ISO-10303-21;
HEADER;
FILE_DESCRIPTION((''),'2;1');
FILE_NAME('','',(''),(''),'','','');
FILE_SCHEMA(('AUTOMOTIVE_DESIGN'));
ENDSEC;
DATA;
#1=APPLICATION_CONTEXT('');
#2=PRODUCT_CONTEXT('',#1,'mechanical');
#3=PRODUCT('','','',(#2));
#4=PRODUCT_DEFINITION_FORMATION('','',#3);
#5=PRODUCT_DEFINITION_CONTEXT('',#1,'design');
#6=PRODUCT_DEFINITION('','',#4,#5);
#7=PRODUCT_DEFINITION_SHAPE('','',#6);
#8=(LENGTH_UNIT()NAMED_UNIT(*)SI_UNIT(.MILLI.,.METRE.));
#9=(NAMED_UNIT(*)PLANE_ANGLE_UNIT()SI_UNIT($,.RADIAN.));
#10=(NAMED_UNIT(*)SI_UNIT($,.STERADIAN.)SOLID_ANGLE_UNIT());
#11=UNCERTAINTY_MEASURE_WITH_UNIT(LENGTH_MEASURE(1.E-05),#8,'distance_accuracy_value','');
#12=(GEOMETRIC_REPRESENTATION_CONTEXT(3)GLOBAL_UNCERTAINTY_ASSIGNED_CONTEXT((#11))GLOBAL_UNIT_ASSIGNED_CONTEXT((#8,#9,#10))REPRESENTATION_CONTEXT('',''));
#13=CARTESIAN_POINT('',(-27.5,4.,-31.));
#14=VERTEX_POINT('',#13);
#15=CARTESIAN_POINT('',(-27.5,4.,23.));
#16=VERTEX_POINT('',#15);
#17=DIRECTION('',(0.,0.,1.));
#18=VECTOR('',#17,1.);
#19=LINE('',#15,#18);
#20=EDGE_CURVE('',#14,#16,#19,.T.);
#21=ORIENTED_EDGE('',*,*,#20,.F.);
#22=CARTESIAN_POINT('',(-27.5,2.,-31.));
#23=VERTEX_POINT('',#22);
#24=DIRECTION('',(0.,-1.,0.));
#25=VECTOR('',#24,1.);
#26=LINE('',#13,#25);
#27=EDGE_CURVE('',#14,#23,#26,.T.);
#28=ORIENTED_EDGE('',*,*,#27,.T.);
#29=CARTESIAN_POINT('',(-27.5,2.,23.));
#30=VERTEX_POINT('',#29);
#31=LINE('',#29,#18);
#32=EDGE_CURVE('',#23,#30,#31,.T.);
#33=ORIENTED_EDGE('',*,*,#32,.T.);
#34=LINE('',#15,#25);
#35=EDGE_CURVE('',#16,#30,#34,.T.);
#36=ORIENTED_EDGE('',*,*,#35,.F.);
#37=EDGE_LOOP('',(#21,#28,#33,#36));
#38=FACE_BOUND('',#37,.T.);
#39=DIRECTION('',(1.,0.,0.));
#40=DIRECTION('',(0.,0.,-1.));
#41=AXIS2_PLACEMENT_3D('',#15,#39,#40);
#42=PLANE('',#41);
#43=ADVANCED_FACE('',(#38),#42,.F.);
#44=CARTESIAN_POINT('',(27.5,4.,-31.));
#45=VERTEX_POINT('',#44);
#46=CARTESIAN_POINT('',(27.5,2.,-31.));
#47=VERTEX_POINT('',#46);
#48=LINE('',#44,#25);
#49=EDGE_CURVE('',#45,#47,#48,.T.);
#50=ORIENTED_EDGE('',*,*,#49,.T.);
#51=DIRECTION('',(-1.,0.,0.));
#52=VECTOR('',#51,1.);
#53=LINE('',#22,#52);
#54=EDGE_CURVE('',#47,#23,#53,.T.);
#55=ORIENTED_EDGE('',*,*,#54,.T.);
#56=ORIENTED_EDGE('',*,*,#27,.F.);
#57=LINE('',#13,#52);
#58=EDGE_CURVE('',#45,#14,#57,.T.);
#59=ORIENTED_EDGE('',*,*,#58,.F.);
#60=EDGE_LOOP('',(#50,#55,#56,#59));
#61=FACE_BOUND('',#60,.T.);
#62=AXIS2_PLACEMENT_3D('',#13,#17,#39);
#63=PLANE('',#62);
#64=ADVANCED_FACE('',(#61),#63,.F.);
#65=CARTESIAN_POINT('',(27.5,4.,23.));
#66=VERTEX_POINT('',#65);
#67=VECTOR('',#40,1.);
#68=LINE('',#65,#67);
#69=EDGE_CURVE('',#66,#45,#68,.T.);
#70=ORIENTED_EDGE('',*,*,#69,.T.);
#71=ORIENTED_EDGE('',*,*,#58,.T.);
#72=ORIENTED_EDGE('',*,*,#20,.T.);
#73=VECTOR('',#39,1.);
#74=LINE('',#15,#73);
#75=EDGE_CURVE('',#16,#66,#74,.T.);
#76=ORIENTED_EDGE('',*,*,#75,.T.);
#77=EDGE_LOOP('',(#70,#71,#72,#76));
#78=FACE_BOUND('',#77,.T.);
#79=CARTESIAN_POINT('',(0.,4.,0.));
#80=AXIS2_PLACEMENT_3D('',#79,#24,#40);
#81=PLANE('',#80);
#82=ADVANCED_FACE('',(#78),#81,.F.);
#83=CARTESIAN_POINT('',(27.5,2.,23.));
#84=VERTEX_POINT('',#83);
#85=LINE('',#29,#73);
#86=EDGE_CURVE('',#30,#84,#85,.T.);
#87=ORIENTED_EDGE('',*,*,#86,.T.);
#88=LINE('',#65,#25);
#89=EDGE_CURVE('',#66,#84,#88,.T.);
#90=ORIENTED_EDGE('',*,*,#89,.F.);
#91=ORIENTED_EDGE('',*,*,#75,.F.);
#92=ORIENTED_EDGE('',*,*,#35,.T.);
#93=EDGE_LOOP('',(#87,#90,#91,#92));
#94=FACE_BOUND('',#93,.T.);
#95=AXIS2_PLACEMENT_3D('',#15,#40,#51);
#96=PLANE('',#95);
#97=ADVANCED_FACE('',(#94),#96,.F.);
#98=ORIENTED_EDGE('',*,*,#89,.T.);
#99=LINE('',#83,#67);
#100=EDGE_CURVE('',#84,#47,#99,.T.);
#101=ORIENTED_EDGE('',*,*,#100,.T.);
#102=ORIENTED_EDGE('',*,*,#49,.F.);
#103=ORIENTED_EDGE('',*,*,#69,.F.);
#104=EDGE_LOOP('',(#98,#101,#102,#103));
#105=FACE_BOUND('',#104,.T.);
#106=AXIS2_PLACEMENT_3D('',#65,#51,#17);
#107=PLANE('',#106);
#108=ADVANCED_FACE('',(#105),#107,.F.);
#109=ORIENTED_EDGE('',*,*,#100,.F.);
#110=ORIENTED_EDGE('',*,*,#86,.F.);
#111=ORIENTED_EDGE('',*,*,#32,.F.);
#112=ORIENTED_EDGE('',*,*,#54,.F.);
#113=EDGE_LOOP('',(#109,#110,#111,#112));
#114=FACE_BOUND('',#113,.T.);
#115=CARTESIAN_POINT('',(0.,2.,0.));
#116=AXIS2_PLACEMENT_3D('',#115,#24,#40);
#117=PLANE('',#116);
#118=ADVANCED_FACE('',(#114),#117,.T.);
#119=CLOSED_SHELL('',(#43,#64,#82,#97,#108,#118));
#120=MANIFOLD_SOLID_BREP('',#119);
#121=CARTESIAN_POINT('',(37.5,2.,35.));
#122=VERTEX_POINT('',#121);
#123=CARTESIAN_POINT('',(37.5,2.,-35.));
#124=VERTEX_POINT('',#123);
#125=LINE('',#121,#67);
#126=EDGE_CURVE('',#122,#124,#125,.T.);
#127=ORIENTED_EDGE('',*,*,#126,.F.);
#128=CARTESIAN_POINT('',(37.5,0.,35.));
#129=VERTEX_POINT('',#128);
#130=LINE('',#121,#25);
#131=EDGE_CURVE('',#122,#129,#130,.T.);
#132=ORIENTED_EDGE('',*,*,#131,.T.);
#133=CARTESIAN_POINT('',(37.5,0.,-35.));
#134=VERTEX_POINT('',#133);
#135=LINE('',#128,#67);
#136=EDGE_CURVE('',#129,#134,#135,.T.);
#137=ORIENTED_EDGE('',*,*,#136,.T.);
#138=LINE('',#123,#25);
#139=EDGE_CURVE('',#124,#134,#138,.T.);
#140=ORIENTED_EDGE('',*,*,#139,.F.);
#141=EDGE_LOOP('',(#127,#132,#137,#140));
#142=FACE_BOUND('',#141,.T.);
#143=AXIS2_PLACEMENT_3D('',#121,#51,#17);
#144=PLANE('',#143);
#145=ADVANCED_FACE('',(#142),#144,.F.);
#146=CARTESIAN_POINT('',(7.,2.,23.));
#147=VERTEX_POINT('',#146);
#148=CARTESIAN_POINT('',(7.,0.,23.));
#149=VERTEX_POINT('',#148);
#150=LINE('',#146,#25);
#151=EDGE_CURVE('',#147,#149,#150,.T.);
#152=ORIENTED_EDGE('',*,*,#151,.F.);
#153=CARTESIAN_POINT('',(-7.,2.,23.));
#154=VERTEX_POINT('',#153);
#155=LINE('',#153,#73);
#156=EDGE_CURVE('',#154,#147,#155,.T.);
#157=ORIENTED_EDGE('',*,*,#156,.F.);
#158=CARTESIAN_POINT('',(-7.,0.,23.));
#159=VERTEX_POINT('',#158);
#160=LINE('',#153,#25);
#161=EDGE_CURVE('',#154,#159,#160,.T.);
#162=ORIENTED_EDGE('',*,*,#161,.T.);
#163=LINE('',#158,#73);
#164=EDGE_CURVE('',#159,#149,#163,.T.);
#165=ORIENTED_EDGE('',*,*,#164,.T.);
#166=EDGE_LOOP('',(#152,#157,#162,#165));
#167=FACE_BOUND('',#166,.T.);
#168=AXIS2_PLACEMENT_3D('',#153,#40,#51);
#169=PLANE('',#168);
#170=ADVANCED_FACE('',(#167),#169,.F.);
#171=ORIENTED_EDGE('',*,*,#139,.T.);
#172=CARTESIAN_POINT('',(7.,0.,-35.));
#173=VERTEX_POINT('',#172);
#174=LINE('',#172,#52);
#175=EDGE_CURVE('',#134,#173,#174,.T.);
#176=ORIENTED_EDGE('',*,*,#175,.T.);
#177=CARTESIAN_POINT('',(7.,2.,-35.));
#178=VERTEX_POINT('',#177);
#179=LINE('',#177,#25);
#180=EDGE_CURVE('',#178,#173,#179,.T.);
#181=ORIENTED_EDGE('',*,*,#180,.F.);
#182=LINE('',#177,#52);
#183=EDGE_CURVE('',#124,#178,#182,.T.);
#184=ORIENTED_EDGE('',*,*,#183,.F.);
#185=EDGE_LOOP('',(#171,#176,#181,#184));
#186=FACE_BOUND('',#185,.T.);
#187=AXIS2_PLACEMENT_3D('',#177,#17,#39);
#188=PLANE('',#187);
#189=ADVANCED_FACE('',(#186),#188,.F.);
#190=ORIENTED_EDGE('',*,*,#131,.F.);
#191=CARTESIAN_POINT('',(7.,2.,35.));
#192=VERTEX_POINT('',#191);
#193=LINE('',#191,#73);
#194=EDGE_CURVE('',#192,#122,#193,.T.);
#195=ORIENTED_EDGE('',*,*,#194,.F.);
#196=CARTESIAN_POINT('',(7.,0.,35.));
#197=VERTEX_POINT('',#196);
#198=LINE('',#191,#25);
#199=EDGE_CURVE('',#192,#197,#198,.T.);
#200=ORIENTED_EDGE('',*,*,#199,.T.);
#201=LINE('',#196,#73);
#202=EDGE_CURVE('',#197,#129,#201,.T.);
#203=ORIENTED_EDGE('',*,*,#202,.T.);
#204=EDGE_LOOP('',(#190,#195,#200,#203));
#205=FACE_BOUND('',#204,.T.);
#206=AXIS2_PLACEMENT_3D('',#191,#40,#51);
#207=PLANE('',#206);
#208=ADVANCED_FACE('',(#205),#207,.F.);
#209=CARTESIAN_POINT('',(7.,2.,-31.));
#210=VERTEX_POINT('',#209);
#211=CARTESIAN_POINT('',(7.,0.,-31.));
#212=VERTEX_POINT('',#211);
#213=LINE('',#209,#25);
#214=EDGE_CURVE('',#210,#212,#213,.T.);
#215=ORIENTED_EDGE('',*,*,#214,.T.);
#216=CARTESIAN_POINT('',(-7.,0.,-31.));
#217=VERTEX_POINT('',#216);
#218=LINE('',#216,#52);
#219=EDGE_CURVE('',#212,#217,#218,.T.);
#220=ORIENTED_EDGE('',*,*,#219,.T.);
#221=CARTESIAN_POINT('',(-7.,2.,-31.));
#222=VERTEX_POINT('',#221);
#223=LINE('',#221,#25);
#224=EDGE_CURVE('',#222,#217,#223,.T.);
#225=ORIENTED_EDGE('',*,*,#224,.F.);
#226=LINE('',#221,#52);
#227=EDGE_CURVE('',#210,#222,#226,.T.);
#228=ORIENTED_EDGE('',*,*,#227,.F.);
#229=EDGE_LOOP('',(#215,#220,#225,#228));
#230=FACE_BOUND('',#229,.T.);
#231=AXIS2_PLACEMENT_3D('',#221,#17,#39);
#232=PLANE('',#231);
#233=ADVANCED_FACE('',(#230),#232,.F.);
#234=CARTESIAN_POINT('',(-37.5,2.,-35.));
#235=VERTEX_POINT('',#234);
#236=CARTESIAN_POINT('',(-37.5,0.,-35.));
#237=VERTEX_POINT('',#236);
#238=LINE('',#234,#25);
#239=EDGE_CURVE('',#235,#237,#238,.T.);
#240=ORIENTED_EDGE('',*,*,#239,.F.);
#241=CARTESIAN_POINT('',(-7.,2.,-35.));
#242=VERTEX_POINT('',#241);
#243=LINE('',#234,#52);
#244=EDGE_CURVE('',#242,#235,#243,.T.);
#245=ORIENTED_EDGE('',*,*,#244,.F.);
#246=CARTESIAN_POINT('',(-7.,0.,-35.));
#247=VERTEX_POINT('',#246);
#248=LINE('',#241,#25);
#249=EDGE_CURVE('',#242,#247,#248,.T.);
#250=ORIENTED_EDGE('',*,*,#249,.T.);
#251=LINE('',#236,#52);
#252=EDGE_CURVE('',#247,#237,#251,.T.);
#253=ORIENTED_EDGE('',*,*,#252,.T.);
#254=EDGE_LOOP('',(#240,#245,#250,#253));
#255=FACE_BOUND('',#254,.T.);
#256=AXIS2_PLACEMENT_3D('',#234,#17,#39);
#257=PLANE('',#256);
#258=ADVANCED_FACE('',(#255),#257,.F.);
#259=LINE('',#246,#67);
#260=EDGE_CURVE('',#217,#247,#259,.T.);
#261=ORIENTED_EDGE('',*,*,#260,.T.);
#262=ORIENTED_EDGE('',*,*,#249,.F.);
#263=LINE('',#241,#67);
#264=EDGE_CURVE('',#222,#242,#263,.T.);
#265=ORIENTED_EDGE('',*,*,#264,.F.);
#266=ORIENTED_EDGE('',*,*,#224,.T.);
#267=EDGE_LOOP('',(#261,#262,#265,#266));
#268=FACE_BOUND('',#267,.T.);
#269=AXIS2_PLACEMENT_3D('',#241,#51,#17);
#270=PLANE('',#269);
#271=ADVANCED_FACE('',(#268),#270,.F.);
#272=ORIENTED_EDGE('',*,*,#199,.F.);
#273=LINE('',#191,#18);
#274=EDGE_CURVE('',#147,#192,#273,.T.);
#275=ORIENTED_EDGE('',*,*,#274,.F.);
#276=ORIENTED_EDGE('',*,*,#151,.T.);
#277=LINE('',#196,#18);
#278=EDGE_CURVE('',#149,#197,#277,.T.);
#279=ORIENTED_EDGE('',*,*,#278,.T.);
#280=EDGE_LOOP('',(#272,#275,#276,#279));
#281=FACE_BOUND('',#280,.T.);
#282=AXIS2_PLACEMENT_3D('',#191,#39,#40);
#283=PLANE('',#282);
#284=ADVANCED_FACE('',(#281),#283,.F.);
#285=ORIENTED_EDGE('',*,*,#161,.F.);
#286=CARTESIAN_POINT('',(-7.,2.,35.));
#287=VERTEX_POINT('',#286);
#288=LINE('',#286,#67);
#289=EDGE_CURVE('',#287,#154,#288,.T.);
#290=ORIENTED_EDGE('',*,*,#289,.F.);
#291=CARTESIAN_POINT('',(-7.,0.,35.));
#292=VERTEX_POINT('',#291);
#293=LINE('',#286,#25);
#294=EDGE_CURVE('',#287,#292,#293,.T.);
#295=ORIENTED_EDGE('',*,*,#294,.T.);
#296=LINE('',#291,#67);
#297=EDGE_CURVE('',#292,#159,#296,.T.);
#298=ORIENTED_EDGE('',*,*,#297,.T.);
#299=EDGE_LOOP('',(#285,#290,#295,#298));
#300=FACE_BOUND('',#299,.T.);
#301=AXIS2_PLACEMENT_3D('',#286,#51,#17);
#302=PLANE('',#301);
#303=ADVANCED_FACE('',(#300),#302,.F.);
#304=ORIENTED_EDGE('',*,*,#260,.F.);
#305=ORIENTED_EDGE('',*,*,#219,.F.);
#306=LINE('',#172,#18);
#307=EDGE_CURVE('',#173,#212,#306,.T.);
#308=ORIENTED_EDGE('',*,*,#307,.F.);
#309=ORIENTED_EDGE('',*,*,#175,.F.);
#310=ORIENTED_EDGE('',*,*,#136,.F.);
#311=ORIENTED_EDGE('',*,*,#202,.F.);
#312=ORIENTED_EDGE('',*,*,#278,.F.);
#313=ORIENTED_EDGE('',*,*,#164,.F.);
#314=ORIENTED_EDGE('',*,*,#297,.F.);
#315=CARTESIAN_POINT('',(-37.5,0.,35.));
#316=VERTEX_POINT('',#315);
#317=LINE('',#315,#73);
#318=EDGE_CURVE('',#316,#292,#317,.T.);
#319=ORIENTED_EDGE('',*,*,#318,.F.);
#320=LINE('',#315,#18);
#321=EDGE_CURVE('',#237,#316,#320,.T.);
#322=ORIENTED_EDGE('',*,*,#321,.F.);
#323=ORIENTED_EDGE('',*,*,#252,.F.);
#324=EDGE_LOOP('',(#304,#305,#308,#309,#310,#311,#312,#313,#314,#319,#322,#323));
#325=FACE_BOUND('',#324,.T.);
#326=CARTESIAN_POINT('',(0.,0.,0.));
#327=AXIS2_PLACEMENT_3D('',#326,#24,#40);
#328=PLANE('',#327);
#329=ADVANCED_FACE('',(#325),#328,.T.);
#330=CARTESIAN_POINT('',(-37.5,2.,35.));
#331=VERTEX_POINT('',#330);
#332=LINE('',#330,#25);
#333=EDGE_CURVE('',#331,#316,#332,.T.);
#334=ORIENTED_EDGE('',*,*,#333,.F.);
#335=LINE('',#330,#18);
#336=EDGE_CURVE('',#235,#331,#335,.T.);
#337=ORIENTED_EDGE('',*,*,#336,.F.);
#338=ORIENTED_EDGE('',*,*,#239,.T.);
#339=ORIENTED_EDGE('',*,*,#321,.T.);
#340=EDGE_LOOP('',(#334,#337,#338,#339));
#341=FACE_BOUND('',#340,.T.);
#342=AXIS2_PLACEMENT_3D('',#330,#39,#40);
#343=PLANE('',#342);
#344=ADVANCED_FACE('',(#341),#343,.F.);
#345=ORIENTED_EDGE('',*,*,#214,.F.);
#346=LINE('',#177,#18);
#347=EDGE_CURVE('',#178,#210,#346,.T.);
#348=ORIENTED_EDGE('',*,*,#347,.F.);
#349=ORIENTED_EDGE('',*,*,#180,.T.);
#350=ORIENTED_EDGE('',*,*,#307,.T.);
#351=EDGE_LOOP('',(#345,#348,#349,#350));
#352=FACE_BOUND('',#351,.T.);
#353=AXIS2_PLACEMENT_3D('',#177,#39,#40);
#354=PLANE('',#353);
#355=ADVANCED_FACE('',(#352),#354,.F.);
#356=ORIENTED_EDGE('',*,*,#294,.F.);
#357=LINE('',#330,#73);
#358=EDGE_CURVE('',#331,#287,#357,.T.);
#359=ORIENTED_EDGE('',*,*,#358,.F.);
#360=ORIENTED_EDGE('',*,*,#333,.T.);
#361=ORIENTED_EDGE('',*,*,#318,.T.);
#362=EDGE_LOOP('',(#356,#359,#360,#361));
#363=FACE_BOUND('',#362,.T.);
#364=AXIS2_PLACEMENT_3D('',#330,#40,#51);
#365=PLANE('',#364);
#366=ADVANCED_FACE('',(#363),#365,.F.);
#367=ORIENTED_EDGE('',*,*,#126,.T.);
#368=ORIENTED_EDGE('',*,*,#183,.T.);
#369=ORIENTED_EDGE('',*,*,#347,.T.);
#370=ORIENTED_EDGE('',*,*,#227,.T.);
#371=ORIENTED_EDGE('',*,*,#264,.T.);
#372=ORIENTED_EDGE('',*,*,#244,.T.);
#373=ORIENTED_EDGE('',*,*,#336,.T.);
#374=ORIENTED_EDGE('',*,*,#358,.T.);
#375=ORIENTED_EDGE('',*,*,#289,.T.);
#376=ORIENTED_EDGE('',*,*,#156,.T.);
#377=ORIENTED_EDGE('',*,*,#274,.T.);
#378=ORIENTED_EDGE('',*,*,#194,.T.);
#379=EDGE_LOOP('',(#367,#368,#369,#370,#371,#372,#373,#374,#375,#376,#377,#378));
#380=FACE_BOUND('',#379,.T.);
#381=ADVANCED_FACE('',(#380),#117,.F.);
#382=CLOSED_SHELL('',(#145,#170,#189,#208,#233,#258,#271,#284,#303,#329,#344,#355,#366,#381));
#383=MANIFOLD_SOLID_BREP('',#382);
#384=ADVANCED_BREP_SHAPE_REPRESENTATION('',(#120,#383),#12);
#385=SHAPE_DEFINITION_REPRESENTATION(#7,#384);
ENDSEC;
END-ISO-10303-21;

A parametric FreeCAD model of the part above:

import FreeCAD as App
import Part
import Sketcher
from FreeCAD import Vector

doc = App.newDocument("Part")
body = doc.addObject("PartDesign::Body", "Body")

# Sketch on XZ plane
sketch1 = body.newObject("Sketcher::SketchObject", "Sketch")
sketch1.AttachmentSupport = (doc.getObject("XZ_Plane"), [""])
sketch1.MapMode = "FlatFace"
sketch1.addGeometry(Part.LineSegment(Vector(37.5, -35, 0), Vector(7, -35, 0)), False)
sketch1.addGeometry(Part.LineSegment(Vector(7, -35, 0), Vector(7, -31, 0)), False)
sketch1.addGeometry(Part.LineSegment(Vector(7, -31, 0), Vector(-7, -31, 0)), False)
sketch1.addGeometry(Part.LineSegment(Vector(-7, -31, 0), Vector(-7, -35, 0)), False)
sketch1.addGeometry(Part.LineSegment(Vector(-7, -35, 0), Vector(-37.5, -35, 0)), False)
sketch1.addGeometry(Part.LineSegment(Vector(-37.5, -35, 0), Vector(-37.5, 35, 0)), False)
sketch1.addGeometry(Part.LineSegment(Vector(-37.5, 35, 0), Vector(-7, 35, 0)), False)
sketch1.addGeometry(Part.LineSegment(Vector(-7, 35, 0), Vector(-7, 23, 0)), False)
sketch1.addGeometry(Part.LineSegment(Vector(-7, 23, 0), Vector(7, 23, 0)), False)
sketch1.addGeometry(Part.LineSegment(Vector(7, 23, 0), Vector(7, 35, 0)), False)
sketch1.addGeometry(Part.LineSegment(Vector(7, 35, 0), Vector(37.5, 35, 0)), False)
sketch1.addGeometry(Part.LineSegment(Vector(37.5, 35, 0), Vector(37.5, -35, 0)), False)
sketch1.addConstraint(Sketcher.Constraint("Coincident", 0, 2, 1, 1))
sketch1.addConstraint(Sketcher.Constraint("Coincident", 1, 2, 2, 1))
sketch1.addConstraint(Sketcher.Constraint("Coincident", 2, 2, 3, 1))
sketch1.addConstraint(Sketcher.Constraint("Coincident", 3, 2, 4, 1))
sketch1.addConstraint(Sketcher.Constraint("Coincident", 4, 2, 5, 1))
sketch1.addConstraint(Sketcher.Constraint("Coincident", 5, 2, 6, 1))
sketch1.addConstraint(Sketcher.Constraint("Coincident", 6, 2, 7, 1))
sketch1.addConstraint(Sketcher.Constraint("Coincident", 7, 2, 8, 1))
sketch1.addConstraint(Sketcher.Constraint("Coincident", 8, 2, 9, 1))
sketch1.addConstraint(Sketcher.Constraint("Coincident", 9, 2, 10, 1))
sketch1.addConstraint(Sketcher.Constraint("Coincident", 10, 2, 11, 1))
sketch1.addConstraint(Sketcher.Constraint("Coincident", 11, 2, 0, 1))
sketch1.addConstraint(Sketcher.Constraint("Horizontal", 0))
sketch1.addConstraint(Sketcher.Constraint("Vertical", 1))
sketch1.addConstraint(Sketcher.Constraint("Horizontal", 2))
sketch1.addConstraint(Sketcher.Constraint("Vertical", 3))
sketch1.addConstraint(Sketcher.Constraint("Horizontal", 4))
sketch1.addConstraint(Sketcher.Constraint("Vertical", 5))
sketch1.addConstraint(Sketcher.Constraint("Horizontal", 6))
sketch1.addConstraint(Sketcher.Constraint("Vertical", 7))
sketch1.addConstraint(Sketcher.Constraint("Horizontal", 8))
sketch1.addConstraint(Sketcher.Constraint("Vertical", 9))
sketch1.addConstraint(Sketcher.Constraint("Horizontal", 10))
sketch1.addConstraint(Sketcher.Constraint("Vertical", 11))
sketch1.addConstraint(Sketcher.Constraint("Symmetric", 0, 2, 6, 2, -1, 1))
sketch1.addConstraint(Sketcher.Constraint("Symmetric", 3, 2, 9, 2, -1, 1))
sketch1.addConstraint(Sketcher.Constraint("Symmetric", 0, 2, 3, 2, -2))
sketch1.addConstraint(Sketcher.Constraint("Equal", 0, 4))
sketch1.addConstraint(Sketcher.Constraint("DistanceX", 2, 2, 2, 1, 14.0))
sketch1.addConstraint(Sketcher.Constraint("DistanceY", 1, 1, 1, 2, 4.0))
sketch1.addConstraint(Sketcher.Constraint("DistanceY", 5, 1, 5, 2, 70.0))
sketch1.addConstraint(Sketcher.Constraint("DistanceY", 7, 2, 7, 1, 12.0))
sketch1.addConstraint(Sketcher.Constraint("DistanceX", 0, 2, 0, 1, 30.5))
pad1 = body.newObject("PartDesign::Pad", "Pad")
pad1.Profile = sketch1
pad1.Length = 2
pad1.Reversed = True
body2 = doc.addObject("PartDesign::Body", "Body001")

# Sketch on XZ plane
sketch2 = body2.newObject("Sketcher::SketchObject", "Sketch001")
sketch2.AttachmentSupport = (doc.getObject("XZ_Plane001"), [""])
sketch2.MapMode = "FlatFace"
sketch2.AttachmentOffset = App.Placement(Vector(0, 0, -2), App.Rotation())
sketch2.addGeometry(Part.LineSegment(Vector(-27.5, -31, 0), Vector(-27.5, 23, 0)), False)
sketch2.addGeometry(Part.LineSegment(Vector(-27.5, 23, 0), Vector(27.5, 23, 0)), False)
sketch2.addGeometry(Part.LineSegment(Vector(27.5, 23, 0), Vector(27.5, -31, 0)), False)
sketch2.addGeometry(Part.LineSegment(Vector(27.5, -31, 0), Vector(-27.5, -31, 0)), False)
sketch2.addConstraint(Sketcher.Constraint("Coincident", 0, 2, 1, 1))
sketch2.addConstraint(Sketcher.Constraint("Coincident", 1, 2, 2, 1))
sketch2.addConstraint(Sketcher.Constraint("Coincident", 2, 2, 3, 1))
sketch2.addConstraint(Sketcher.Constraint("Coincident", 3, 2, 0, 1))
sketch2.addConstraint(Sketcher.Constraint("Vertical", 0))
sketch2.addConstraint(Sketcher.Constraint("Horizontal", 1))
sketch2.addConstraint(Sketcher.Constraint("Vertical", 2))
sketch2.addConstraint(Sketcher.Constraint("Horizontal", 3))
sketch2.addConstraint(Sketcher.Constraint("DistanceX", 1, 1, 1, 2, 55.0))
sketch2.addConstraint(Sketcher.Constraint("DistanceY", 0, 1, 0, 2, 54.0))
sketch2.addConstraint(Sketcher.Constraint("DistanceY", -1, 1, 0, 2, 23.0))
sketch2.addConstraint(Sketcher.Constraint("DistanceX", 0, 2, -1, 1, 27.5))
pad2 = body2.newObject("PartDesign::Pad", "Pad001")
pad2.Profile = sketch2
pad2.Length = 2
pad2.Reversed = True

doc.recompute()
